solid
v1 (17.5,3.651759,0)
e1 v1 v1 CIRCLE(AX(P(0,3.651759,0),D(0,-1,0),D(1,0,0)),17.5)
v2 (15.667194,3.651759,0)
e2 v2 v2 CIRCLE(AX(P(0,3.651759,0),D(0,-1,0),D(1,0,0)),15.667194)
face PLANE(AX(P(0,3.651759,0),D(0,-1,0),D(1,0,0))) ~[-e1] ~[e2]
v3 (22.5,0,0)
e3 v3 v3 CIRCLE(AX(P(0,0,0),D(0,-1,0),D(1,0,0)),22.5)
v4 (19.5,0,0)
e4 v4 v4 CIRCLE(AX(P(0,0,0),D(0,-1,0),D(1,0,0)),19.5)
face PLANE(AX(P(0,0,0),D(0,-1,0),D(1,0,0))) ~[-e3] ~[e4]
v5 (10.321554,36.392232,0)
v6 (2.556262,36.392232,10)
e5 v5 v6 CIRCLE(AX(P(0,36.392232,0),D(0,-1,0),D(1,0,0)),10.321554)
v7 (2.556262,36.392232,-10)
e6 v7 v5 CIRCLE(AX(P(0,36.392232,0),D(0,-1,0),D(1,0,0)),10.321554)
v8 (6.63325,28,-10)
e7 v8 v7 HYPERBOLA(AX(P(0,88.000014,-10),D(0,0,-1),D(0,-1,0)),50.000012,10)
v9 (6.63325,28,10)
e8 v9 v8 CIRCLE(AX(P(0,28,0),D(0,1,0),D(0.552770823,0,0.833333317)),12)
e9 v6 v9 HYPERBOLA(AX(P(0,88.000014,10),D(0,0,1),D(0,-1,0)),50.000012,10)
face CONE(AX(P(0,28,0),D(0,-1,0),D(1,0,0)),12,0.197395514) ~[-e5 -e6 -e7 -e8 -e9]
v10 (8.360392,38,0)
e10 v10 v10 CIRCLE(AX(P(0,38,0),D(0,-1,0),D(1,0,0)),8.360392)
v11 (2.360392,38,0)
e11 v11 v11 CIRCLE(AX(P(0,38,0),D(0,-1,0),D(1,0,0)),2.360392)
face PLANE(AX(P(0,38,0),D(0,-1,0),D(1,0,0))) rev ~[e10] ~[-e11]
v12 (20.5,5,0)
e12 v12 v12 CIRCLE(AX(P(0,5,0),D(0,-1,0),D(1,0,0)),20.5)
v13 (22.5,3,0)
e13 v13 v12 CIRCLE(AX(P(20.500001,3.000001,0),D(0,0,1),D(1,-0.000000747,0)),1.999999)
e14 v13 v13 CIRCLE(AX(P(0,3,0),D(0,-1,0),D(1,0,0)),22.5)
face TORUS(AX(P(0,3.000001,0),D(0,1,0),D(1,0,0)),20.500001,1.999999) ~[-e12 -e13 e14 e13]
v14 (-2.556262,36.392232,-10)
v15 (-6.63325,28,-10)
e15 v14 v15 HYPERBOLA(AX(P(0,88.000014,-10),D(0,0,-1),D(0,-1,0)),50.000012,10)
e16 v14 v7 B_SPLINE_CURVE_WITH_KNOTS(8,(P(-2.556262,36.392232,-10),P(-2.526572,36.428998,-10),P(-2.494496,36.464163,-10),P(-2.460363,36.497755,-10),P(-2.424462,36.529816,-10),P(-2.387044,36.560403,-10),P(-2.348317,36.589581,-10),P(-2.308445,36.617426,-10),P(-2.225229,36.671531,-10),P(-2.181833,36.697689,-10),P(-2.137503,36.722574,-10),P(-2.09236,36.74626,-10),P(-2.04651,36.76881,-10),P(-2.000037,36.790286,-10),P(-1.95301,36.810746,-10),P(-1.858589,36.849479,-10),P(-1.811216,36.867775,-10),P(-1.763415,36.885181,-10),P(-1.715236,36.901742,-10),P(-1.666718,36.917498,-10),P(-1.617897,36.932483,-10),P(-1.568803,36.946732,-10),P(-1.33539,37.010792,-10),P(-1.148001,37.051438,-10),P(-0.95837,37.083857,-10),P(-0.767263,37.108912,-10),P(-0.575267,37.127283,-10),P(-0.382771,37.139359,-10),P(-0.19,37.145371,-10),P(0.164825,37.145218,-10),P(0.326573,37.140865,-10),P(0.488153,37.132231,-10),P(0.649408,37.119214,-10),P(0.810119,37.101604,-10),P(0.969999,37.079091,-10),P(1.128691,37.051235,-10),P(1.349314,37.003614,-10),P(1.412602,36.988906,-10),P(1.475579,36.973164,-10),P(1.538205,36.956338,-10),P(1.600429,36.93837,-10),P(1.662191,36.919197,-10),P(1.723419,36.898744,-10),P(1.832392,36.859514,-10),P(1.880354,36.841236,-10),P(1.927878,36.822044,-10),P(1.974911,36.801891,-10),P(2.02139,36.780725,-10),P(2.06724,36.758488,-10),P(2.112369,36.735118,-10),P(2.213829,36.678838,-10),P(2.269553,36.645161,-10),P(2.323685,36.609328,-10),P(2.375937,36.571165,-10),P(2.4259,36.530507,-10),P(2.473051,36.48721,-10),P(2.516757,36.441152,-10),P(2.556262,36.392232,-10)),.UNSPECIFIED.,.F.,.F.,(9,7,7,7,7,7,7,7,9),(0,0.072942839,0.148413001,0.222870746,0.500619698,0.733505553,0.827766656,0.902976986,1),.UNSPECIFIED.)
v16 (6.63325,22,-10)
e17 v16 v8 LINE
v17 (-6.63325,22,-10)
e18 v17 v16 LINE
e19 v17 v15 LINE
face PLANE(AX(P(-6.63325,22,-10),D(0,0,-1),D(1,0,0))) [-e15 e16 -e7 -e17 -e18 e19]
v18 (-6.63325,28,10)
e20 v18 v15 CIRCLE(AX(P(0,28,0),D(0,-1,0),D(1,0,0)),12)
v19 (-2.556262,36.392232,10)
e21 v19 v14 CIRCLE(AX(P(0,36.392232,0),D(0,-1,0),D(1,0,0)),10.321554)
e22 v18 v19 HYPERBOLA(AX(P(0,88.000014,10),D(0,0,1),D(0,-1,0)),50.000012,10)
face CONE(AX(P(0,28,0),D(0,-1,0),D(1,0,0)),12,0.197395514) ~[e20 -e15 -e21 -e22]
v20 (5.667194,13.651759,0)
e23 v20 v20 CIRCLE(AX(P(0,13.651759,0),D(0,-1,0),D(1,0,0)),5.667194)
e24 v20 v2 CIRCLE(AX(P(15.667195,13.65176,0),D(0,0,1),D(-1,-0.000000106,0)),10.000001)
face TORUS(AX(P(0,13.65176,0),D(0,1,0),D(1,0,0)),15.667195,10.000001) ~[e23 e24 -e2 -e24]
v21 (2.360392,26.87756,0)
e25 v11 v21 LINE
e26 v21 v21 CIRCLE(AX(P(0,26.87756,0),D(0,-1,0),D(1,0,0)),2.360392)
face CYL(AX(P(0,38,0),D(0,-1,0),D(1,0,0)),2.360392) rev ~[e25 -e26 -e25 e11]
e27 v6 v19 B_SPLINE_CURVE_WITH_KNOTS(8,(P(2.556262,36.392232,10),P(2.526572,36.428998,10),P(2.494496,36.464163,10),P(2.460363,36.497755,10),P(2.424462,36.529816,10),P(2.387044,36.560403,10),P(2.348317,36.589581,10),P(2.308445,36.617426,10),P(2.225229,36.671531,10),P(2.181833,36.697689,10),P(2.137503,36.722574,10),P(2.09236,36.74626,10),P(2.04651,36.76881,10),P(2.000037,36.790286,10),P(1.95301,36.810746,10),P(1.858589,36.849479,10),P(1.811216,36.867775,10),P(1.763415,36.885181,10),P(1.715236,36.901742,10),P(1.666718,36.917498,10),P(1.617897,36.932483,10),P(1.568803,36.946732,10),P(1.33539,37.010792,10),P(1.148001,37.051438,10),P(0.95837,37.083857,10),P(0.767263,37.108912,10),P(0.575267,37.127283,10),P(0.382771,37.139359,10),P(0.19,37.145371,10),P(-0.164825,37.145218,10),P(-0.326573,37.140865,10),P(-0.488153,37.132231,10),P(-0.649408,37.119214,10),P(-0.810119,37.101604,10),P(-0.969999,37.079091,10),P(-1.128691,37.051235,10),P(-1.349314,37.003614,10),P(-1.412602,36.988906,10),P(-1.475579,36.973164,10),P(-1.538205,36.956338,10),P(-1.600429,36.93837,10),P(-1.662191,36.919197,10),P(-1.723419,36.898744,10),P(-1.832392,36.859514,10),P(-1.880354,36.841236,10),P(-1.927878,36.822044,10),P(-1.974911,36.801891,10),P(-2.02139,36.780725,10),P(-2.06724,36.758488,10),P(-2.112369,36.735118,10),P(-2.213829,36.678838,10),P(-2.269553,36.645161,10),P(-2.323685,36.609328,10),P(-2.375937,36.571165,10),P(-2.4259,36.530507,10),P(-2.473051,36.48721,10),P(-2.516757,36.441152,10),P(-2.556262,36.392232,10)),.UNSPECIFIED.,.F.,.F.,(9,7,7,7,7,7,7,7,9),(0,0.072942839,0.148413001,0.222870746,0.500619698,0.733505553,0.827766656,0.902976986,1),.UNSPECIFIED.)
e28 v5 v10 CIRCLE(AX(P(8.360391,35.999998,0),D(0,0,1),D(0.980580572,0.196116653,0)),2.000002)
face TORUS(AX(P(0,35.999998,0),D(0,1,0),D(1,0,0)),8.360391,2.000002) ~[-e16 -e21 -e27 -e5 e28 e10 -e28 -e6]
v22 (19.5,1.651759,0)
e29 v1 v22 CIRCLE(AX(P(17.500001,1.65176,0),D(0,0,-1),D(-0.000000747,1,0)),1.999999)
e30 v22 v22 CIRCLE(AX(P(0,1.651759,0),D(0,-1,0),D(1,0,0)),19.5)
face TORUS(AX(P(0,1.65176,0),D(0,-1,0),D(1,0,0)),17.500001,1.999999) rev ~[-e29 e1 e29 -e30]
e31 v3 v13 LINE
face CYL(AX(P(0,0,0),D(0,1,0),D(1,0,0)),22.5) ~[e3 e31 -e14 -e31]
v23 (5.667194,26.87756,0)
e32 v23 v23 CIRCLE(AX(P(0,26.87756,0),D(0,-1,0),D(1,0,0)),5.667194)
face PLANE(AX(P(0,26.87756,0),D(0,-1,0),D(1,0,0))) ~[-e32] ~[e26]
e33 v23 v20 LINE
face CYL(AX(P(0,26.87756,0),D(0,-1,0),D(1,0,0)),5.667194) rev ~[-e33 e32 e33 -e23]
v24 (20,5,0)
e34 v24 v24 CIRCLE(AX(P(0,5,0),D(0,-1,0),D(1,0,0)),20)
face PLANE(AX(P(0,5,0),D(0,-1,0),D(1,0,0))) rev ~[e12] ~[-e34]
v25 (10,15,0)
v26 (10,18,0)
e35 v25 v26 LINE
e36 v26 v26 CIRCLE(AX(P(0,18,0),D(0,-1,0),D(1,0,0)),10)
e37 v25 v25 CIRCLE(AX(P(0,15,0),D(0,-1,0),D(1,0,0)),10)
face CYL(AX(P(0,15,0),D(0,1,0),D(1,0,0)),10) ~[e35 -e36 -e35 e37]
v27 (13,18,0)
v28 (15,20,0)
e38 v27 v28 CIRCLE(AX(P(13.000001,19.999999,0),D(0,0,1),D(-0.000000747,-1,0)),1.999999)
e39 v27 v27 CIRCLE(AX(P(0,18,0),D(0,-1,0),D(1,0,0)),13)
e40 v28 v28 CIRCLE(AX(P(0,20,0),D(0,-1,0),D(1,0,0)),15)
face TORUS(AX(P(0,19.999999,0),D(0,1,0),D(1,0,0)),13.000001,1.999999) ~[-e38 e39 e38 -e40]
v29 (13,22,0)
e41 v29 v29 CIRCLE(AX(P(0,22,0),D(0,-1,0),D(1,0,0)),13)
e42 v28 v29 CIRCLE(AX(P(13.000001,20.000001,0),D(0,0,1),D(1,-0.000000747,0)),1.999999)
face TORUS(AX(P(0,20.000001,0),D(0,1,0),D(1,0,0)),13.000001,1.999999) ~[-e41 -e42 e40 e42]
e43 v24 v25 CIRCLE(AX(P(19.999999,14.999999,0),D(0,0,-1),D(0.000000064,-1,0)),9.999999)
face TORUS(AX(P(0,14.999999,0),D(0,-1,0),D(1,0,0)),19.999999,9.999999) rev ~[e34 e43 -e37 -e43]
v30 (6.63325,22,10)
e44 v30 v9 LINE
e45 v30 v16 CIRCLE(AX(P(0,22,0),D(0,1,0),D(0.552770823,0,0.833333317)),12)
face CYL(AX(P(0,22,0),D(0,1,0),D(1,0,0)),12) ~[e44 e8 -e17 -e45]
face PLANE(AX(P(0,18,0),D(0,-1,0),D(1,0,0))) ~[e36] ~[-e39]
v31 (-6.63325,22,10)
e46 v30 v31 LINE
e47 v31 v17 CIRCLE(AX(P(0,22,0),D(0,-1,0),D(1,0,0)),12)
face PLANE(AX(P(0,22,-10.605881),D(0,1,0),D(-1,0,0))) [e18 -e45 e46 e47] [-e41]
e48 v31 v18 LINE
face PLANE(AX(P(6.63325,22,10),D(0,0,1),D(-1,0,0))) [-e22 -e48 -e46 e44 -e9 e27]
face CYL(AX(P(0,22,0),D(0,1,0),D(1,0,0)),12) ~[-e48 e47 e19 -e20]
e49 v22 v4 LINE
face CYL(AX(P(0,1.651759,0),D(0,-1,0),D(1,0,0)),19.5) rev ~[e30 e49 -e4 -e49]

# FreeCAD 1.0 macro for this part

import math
import FreeCAD as App
import Part
import Sketcher

V = App.Vector
Q = App.Units.Quantity

doc = App.newDocument("Part")
body = doc.addObject("PartDesign::Body", "Body")

# Sketch on XY plane
sketch1 = body.newObject("Sketcher::SketchObject", "Sketch")
sketch1.AttachmentSupport = (doc.getObject("XY_Plane"), [""])
sketch1.MapMode = "FlatFace"
sketch1.addGeometry([
    Part.LineSegment(V(19.5, 1.7, 0), V(19.5, 0, 0)),  # 0
    Part.LineSegment(V(19.5, 0, 0), V(22.5, 0, 0)),  # 1
    Part.LineSegment(V(22.5, 0, 0), V(22.5, 3, 0)),  # 2
    Part.ArcOfCircle(Part.Circle(V(20.5, 3, 0), V(0, 0, 1), 2), math.radians(0), math.radians(90)),  # 3
    Part.LineSegment(V(20.5, 5, 0), V(20, 5, 0)),  # 4
    Part.ArcOfCircle(Part.Circle(V(20, 15, 0), V(0, 0, 1), 10), math.radians(180), math.radians(270)),  # 5
    Part.LineSegment(V(10, 15, 0), V(10, 18, 0)),  # 6
    Part.LineSegment(V(10, 18, 0), V(13, 18, 0)),  # 7
    Part.ArcOfCircle(Part.Circle(V(13, 20, 0), V(0, 0, 1), 2), math.radians(-90), math.radians(0)),  # 8
    Part.ArcOfCircle(Part.Circle(V(13, 20, 0), V(0, 0, 1), 2), math.radians(0), math.radians(90)),  # 9
    Part.LineSegment(V(13, 22, 0), V(12, 22, 0)),  # 10
    Part.LineSegment(V(12, 22, 0), V(12, 28, 0)),  # 11
    Part.LineSegment(V(12, 28, 0), V(10.3, 36.4, 0)),  # 12
    Part.ArcOfCircle(Part.Circle(V(8.4, 36, 0), V(0, 0, 1), 2), math.radians(11), math.radians(90)),  # 13
    Part.LineSegment(V(8.4, 38, 0), V(2.4, 38, 0)),  # 14
    Part.LineSegment(V(2.4, 38, 0), V(2.4, 26.9, 0)),  # 15
    Part.LineSegment(V(2.4, 26.9, 0), V(5.7, 26.9, 0)),  # 16
    Part.LineSegment(V(5.7, 26.9, 0), V(5.7, 13.7, 0)),  # 17
    Part.ArcOfCircle(Part.Circle(V(15.7, 13.7, 0), V(0, 0, 1), 10), math.radians(-180), math.radians(-90)),  # 18
    Part.LineSegment(V(15.7, 3.7, 0), V(17.5, 3.7, 0)),  # 19
    Part.ArcOfCircle(Part.Circle(V(17.5, 1.7, 0), V(0, 0, 1), 2), math.radians(0), math.radians(90)),  # 20
], False)
sketch1.addConstraint([
    Sketcher.Constraint("Coincident", 0, 2, 1, 1),
    Sketcher.Constraint("Coincident", 1, 2, 2, 1),
    Sketcher.Constraint("Tangent", 2, 2, 3, 1),
    Sketcher.Constraint("Tangent", 3, 2, 4, 1),
    Sketcher.Constraint("Tangent", 4, 2, 5, 2),
    Sketcher.Constraint("Tangent", 5, 1, 6, 1),
    Sketcher.Constraint("Coincident", 6, 2, 7, 1),
    Sketcher.Constraint("Tangent", 7, 2, 8, 1),
    Sketcher.Constraint("Tangent", 8, 2, 9, 1),
    Sketcher.Constraint("Tangent", 9, 2, 10, 1),
    Sketcher.Constraint("Coincident", 10, 2, 11, 1),
    Sketcher.Constraint("Coincident", 11, 2, 12, 1),
    Sketcher.Constraint("Tangent", 12, 2, 13, 1),
    Sketcher.Constraint("Tangent", 13, 2, 14, 1),
    Sketcher.Constraint("Coincident", 14, 2, 15, 1),
    Sketcher.Constraint("Coincident", 15, 2, 16, 1),
    Sketcher.Constraint("Coincident", 16, 2, 17, 1),
    Sketcher.Constraint("Tangent", 17, 2, 18, 1),
    Sketcher.Constraint("Tangent", 18, 2, 19, 1),
    Sketcher.Constraint("Tangent", 19, 2, 20, 2),
    Sketcher.Constraint("Tangent", 20, 1, 0, 1),
    Sketcher.Constraint("Vertical", 0),
    Sketcher.Constraint("Horizontal", 1),
    Sketcher.Constraint("Vertical", 2),
    Sketcher.Constraint("Horizontal", 4),
    Sketcher.Constraint("Vertical", 6),
    Sketcher.Constraint("Horizontal", 7),
    Sketcher.Constraint("Horizontal", 10),
    Sketcher.Constraint("Vertical", 11),
    Sketcher.Constraint("Horizontal", 14),
    Sketcher.Constraint("Vertical", 15),
    Sketcher.Constraint("Horizontal", 16),
    Sketcher.Constraint("Vertical", 17),
    Sketcher.Constraint("Horizontal", 19),
    Sketcher.Constraint("Equal", 3, 8),
    Sketcher.Constraint("Equal", 8, 9),
    Sketcher.Constraint("Equal", 5, 18),
    Sketcher.Constraint("Equal", 9, 20),
    Sketcher.Constraint("PointOnObject", 0, 2, -1),
    Sketcher.Constraint("Horizontal", 9, 3, 8, 2),
    Sketcher.Constraint("Equal", 1, 7),
    Sketcher.Constraint("Equal", 7, 2),
    Sketcher.Constraint("Equal", 2, 6),
    Sketcher.Constraint("Equal", 14, 11),
    Sketcher.Constraint("Radius", 3, Q("1.999999 mm")),
    Sketcher.Constraint("Radius", 5, Q("9.999999 mm")),
    Sketcher.Constraint("Radius", 13, Q("2.000002 mm")),
    Sketcher.Constraint("DistanceX", 1, 1, 1, 2, Q("3 mm")),
    Sketcher.Constraint("DistanceX", 10, 2, 10, 1, Q("1 mm")),
    Sketcher.Constraint("DistanceX", 14, 2, 14, 1, Q("6 mm")),
    Sketcher.Constraint("DistanceX", 4, 2, 4, 1, Q("0.5 mm")),
    Sketcher.Constraint("DistanceX", -1, 1, 5, 3, Q("19.999999 mm")),
    Sketcher.Constraint("DistanceY", -1, 1, 13, 3, Q("35.999998 mm")),
    Sketcher.Constraint("DistanceY", 17, 2, 17, 1, Q("13.225801 mm")),
    Sketcher.Constraint("DistanceY", 0, 2, 0, 1, Q("1.651759 mm")),
    Sketcher.Constraint("Distance", 12, Q("8.558431 mm")),
    Sketcher.Constraint("DistanceX", 16, 1, 16, 2, Q("3.306802 mm")),
])
revolution = body.newObject("PartDesign::Revolution", "Revolution")
revolution.Profile = sketch1
revolution.ReferenceAxis = (sketch1, ["V_Axis"])
revolution.Angle = 360

# Sketch on XZ plane
sketch2 = body.newObject("Sketcher::SketchObject", "Sketch001")
sketch2.AttachmentSupport = (doc.getObject("XZ_Plane"), [""])
sketch2.MapMode = "FlatFace"
sketch2.AttachmentOffset = App.Placement(V(0, 0, -22), App.Rotation())
sketch2.addGeometry([
    Part.ArcOfCircle(Part.Circle(V(0, 0, 0), V(0, 0, 1), 12), math.radians(56), math.radians(124)),
    Part.LineSegment(V(7, 10, 0), V(-7, 10, 0)),
    Part.LineSegment(V(-7, -10, 0), V(7, -10, 0)),
    Part.ArcOfCircle(Part.Circle(V(0, 0, 0), V(0, 0, 1), 12), math.radians(-124), math.radians(-56)),
], False)
sketch2.addConstraint([
    Sketcher.Constraint("Coincident", 0, 1, 1, 1),
    Sketcher.Constraint("Coincident", 1, 2, 0, 2),
    Sketcher.Constraint("Coincident", 2, 1, 3, 1),
    Sketcher.Constraint("Coincident", 3, 2, 2, 2),
    Sketcher.Constraint("Horizontal", 1),
    Sketcher.Constraint("Horizontal", 2),
    Sketcher.Constraint("Coincident", 0, 3, -1, 1),
    Sketcher.Constraint("Coincident", 3, 3, -1, 1),
    Sketcher.Constraint("Equal", 0, 3),
    Sketcher.Constraint("Vertical", 1, 2, 2, 1),
    Sketcher.Constraint("Radius", 0, Q("12.000001 mm")),
    Sketcher.Constraint("DistanceY", -1, 1, 0, 1, Q("10 mm")),
])
pocket1 = body.newObject("PartDesign::Pocket", "Pocket")
pocket1.Profile = sketch2
pocket1.Length = 25

doc.recompute()
